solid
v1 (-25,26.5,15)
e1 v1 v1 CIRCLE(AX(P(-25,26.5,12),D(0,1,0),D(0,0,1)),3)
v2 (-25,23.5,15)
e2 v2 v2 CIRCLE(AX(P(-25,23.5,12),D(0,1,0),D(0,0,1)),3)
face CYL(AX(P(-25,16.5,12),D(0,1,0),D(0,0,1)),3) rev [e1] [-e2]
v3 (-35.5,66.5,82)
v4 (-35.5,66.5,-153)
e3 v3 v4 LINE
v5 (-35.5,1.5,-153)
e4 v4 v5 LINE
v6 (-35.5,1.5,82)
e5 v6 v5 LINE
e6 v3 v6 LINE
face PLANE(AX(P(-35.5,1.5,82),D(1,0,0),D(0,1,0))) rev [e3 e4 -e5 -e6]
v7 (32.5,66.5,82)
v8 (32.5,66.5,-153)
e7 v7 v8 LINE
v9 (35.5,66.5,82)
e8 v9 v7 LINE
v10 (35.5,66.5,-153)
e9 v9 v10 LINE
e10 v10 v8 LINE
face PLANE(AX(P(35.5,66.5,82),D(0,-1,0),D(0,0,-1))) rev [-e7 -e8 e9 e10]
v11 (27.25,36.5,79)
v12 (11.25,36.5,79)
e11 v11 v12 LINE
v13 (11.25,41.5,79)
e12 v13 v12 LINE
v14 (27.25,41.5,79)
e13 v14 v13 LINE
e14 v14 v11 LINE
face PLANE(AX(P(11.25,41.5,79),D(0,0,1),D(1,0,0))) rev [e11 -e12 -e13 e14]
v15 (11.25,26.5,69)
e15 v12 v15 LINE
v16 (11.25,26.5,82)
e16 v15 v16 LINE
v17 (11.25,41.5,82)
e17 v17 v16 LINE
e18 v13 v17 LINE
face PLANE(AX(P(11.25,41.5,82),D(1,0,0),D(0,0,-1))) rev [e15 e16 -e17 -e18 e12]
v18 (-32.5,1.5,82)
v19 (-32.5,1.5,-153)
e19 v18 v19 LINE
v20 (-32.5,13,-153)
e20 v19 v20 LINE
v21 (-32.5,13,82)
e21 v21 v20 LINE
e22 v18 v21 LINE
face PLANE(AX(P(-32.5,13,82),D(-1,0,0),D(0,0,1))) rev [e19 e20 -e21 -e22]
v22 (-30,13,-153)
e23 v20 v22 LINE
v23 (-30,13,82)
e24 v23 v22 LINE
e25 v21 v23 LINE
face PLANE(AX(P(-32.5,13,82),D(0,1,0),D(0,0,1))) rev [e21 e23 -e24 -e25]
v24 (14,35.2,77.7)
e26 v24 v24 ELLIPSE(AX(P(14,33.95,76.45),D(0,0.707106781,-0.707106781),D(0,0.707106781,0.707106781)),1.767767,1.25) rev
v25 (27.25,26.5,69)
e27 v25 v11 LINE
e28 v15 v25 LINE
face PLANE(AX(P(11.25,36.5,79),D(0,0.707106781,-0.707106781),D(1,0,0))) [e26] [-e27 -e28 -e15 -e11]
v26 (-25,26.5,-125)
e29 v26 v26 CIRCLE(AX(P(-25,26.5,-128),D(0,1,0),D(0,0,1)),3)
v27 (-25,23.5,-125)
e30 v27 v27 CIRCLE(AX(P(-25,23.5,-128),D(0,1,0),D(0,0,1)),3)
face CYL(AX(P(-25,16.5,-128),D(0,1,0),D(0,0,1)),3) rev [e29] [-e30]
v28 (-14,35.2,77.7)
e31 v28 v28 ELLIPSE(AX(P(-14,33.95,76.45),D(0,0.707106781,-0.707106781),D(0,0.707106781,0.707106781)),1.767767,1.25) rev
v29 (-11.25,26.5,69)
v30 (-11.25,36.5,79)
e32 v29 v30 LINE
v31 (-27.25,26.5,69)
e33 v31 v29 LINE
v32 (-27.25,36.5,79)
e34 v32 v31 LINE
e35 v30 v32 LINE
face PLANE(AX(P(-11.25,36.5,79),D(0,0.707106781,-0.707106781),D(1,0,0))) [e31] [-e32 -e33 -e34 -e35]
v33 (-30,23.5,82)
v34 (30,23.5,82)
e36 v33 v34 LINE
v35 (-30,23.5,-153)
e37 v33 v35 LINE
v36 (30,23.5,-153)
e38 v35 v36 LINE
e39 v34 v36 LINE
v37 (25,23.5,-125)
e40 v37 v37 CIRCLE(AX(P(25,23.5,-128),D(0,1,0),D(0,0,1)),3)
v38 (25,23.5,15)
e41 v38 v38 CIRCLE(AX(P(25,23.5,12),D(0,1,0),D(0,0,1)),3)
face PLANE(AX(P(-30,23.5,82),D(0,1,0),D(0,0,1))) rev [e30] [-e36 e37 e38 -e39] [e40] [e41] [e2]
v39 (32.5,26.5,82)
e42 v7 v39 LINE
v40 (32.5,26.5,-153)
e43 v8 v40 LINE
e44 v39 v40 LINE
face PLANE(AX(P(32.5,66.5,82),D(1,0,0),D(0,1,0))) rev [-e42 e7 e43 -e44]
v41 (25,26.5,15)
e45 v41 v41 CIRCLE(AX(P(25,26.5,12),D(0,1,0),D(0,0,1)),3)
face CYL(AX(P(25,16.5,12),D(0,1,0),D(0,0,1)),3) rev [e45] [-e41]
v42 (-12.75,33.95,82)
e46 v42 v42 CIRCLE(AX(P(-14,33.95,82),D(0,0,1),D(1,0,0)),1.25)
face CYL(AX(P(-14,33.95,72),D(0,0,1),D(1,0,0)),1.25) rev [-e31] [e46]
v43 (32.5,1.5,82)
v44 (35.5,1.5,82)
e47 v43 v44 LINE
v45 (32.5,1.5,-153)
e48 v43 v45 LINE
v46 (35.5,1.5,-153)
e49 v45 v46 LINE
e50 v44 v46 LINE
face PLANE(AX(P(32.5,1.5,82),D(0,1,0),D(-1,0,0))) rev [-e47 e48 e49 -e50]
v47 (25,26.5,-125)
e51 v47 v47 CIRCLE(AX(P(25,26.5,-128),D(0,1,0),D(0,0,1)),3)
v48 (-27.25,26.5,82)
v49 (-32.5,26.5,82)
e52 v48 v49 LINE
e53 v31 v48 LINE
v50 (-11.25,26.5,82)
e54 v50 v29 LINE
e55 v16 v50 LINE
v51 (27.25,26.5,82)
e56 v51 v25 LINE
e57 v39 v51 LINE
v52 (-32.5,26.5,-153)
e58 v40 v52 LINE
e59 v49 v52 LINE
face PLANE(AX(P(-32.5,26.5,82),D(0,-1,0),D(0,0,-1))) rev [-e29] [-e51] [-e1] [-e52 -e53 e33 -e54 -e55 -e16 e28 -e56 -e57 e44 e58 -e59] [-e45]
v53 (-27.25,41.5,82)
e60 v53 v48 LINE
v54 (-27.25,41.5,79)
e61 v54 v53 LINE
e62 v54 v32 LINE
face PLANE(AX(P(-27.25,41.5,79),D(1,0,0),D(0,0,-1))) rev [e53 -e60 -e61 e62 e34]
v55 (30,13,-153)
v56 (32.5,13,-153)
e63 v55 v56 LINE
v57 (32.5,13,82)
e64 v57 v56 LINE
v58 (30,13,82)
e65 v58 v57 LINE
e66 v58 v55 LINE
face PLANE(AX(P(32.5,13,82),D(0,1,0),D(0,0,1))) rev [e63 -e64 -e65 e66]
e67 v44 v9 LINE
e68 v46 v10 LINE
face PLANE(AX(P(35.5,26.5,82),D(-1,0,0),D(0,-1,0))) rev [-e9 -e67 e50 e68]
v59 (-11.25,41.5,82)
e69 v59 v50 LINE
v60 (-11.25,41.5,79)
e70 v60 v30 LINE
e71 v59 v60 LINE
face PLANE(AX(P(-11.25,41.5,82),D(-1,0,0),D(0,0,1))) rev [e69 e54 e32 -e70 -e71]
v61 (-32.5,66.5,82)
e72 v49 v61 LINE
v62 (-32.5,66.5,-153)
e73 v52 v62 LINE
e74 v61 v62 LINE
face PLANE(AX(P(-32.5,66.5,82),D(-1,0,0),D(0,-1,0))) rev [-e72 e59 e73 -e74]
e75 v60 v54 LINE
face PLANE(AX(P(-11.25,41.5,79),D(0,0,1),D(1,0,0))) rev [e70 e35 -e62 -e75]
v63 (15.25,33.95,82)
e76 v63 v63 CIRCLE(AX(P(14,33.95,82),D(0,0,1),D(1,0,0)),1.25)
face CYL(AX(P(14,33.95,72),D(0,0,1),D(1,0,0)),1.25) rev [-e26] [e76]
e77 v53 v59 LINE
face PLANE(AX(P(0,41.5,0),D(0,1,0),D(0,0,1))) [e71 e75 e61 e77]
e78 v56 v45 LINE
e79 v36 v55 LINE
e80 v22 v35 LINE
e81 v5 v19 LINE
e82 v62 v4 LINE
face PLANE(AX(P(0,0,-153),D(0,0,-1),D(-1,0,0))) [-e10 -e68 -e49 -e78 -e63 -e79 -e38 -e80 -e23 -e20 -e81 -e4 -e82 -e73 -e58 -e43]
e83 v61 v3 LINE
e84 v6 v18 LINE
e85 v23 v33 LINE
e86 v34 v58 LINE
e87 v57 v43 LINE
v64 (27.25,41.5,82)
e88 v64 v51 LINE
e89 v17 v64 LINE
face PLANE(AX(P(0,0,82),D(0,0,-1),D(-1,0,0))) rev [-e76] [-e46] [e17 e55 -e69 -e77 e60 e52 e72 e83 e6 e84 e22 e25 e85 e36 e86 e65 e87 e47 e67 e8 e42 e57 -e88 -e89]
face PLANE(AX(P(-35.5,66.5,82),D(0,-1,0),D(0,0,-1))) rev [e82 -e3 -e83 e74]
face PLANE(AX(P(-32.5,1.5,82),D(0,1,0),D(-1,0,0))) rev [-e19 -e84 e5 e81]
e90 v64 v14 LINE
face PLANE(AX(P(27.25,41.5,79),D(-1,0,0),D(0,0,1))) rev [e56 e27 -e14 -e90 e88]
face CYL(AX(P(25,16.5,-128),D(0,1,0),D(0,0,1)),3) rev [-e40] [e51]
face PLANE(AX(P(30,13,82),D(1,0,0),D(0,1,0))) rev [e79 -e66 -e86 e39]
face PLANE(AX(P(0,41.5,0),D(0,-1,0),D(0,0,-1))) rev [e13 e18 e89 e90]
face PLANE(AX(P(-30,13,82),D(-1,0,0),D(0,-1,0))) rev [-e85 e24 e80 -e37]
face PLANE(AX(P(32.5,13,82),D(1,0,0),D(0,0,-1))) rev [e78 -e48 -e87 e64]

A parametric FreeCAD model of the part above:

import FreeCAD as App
import Part
import Sketcher


def edges_at(feature, points):
    """Names of the edges that pass closest to the given points."""
    edges = feature.Shape.Edges
    near = lambda p: min(range(len(edges)), key=lambda i: edges[i].distToShape(Part.Vertex(*p))[0])
    return sorted({f"Edge{near(p) + 1}" for p in points})


def add_polygon(sketch, points):
    """Adds a closed chain of lines whose ends are joined by coincident constraints."""
    first, n = sketch.GeometryCount, len(points)
    for a, b in zip(points, points[1:] + points[:1]):
        sketch.addGeometry(Part.LineSegment(App.Vector(*a, 0), App.Vector(*b, 0)), False)
    for i in range(n):
        sketch.addConstraint(Sketcher.Constraint("Coincident", first + i, 2, first + (i + 1) % n, 1))

doc = App.newDocument("Part")
params = doc.addObject("Spreadsheet::Sheet", "Params")
for row, (alias, value) in enumerate([
    ("sketch1_width", "60 mm"),
    ("sketch1_width2", "3 mm"),
    ("sketch1_width3", "65 mm"),
    ("sketch1_height", "40 mm"),
    ("sketch1_height2", "11.5 mm"),
    ("pad1_length", "82 mm"),
    ("pad1_length2", "153 mm"),
    ("sketch2_width", "16 mm"),
    ("sketch2_height", "3 mm"),
    ("pad2_length", "15 mm"),
    ("chamfer_size", "10 mm"),
    ("sketch3_diameter", "2.5 mm"),
    ("pocket1_length", "10 mm"),
    ("sketch4_diameter", "6 mm"),
    ("pocket2_length", "10 mm"),
], start=1):
    params.set(f"A{row}", alias)
    params.set(f"B{row}", "=" + value)
    params.setAlias(f"B{row}", alias)

body = doc.addObject("PartDesign::Body", "Body")

sketch1 = doc.addObject("Sketcher::SketchObject", "Sketch")
body.addObject(sketch1)
sketch1.AttachmentSupport = (doc.XY_Plane, [""])
sketch1.MapMode = "FlatFace"
add_polygon(sketch1, [(-32.5, 1.5), (-32.5, 13), (-30, 13), (-30, 23.5), (30, 23.5), (30, 13), (32.5, 13), (32.5, 1.5), (35.5, 1.5), (35.5, 66.5), (32.5, 66.5), (32.5, 26.5), (-32.5, 26.5), (-32.5, 66.5), (-35.5, 66.5), (-35.5, 1.5)])
sketch1.addConstraint([
    Sketcher.Constraint("Vertical", 0),
    Sketcher.Constraint("Horizontal", 1),
    Sketcher.Constraint("Vertical", 2),
    Sketcher.Constraint("Horizontal", 3),
    Sketcher.Constraint("Vertical", 4),
    Sketcher.Constraint("Horizontal", 5),
    Sketcher.Constraint("Vertical", 6),
    Sketcher.Constraint("Horizontal", 7),
    Sketcher.Constraint("Vertical", 8),
    Sketcher.Constraint("Horizontal", 9),
    Sketcher.Constraint("Vertical", 10),
    Sketcher.Constraint("Horizontal", 11),
    Sketcher.Constraint("Vertical", 12),
    Sketcher.Constraint("Horizontal", 13),
    Sketcher.Constraint("Vertical", 14),
    Sketcher.Constraint("Horizontal", 15),
    Sketcher.Constraint("Symmetric", 1, 2, 4, 2, -2),
    Sketcher.Constraint("Symmetric", 9, 2, 12, 2, -2),
    Sketcher.Constraint("Symmetric", 7, 2, 14, 2, -2),
    Sketcher.Constraint("Vertical", 6, 2, 9, 2),
    Sketcher.Constraint("Vertical", 0, 2, 11, 2),
    Sketcher.Constraint("Equal", 11, 8),
    Sketcher.Constraint("DistanceX", 3, 1, 3, 2, 60.0),
    Sketcher.Constraint("DistanceX", 7, 1, 7, 2, 3.0),
    Sketcher.Constraint("DistanceX", 11, 2, 11, 1, 65.0),
    Sketcher.Constraint("DistanceY", 10, 2, 10, 1, 40.0),
    Sketcher.Constraint("DistanceY", 0, 1, 0, 2, 11.5),
    Sketcher.Constraint("DistanceY", 2, 1, 2, 2, 10.5),
    Sketcher.Constraint("DistanceY", -1, 1, 0, 2, 13.0),
])
sketch1.setExpression("Constraints[38]", "Params.sketch1_width")
sketch1.setExpression("Constraints[39]", "Params.sketch1_width2")
sketch1.setExpression("Constraints[40]", "Params.sketch1_width3")
sketch1.setExpression("Constraints[41]", "Params.sketch1_height")
sketch1.setExpression("Constraints[42]", "Params.sketch1_height2")
pad1 = doc.addObject("PartDesign::Pad", "Pad")
body.addObject(pad1)
pad1.Profile = sketch1
pad1.Type = "TwoLengths"
pad1.setExpression("Length", "Params.pad1_length")
pad1.setExpression("Length2", "Params.pad1_length2")

sketch2 = doc.addObject("Sketcher::SketchObject", "Sketch001")
body.addObject(sketch2)
sketch2.AttachmentSupport = (doc.XZ_Plane, [""])
sketch2.MapMode = "FlatFace"
sketch2.AttachmentOffset = App.Placement(App.Vector(0, 0, -26.5), App.Rotation())
add_polygon(sketch2, [(-27.2, 79), (-27.2, 82), (-11.2, 82), (-11.2, 79)])
add_polygon(sketch2, [(11.2, 79), (11.2, 82), (27.2, 82), (27.2, 79)])
sketch2.addConstraint([
    Sketcher.Constraint("Vertical", 0),
    Sketcher.Constraint("Horizontal", 1),
    Sketcher.Constraint("Vertical", 2),
    Sketcher.Constraint("Horizontal", 3),
    Sketcher.Constraint("Vertical", 4),
    Sketcher.Constraint("Horizontal", 5),
    Sketcher.Constraint("Vertical", 6),
    Sketcher.Constraint("Horizontal", 7),
    Sketcher.Constraint("Symmetric", 1, 2, 4, 2, -2),
    Sketcher.Constraint("Symmetric", 3, 2, 6, 2, -2),
    Sketcher.Constraint("DistanceX", 1, 1, 1, 2, 16.0),
    Sketcher.Constraint("DistanceY", 0, 1, 0, 2, 3.0),
    Sketcher.Constraint("DistanceY", -1, 1, 0, 2, 82.0),
    Sketcher.Constraint("DistanceX", 1, 2, 4, 2, 22.5),
])
sketch2.setExpression("Constraints[18]", "Params.sketch2_width")
sketch2.setExpression("Constraints[19]", "Params.sketch2_height")
pad2 = doc.addObject("PartDesign::Pad", "Pad001")
body.addObject(pad2)
pad2.Profile = sketch2
pad2.setExpression("Length", "Params.pad2_length")
pad2.Reversed = True
doc.recompute()

chamfer = doc.addObject("PartDesign::Chamfer", "Chamfer")
body.addObject(chamfer)
chamfer.Base = (pad2, edges_at(pad2, [(-19.25, 26.5, 79), (19.25, 26.5, 79)]))
chamfer.setExpression("Size", "Params.chamfer_size")

sketch3 = doc.addObject("Sketcher::SketchObject", "Sketch002")
body.addObject(sketch3)
sketch3.AttachmentSupport = (doc.XY_Plane, [""])
sketch3.MapMode = "FlatFace"
sketch3.AttachmentOffset = App.Placement(App.Vector(0, 0, 82), App.Rotation())
sketch3.addGeometry([
    Part.Circle(App.Vector(-14, 34, 0), App.Vector(0, 0, 1), 1.2),
    Part.Circle(App.Vector(14, 34, 0), App.Vector(0, 0, 1), 1.2),
], False)
sketch3.addConstraint([
    Sketcher.Constraint("Equal", 0, 1),
    Sketcher.Constraint("Symmetric", 0, 3, 1, 3, -2),
    Sketcher.Constraint("Diameter", 0, 2.5),
    Sketcher.Constraint("DistanceX", 0, 3, -1, 1, 14.0),
    Sketcher.Constraint("DistanceY", -1, 1, 0, 3, 33.95),
])
sketch3.setExpression("Constraints[2]", "Params.sketch3_diameter")
pocket1 = doc.addObject("PartDesign::Pocket", "Pocket")
body.addObject(pocket1)
pocket1.Profile = sketch3
pocket1.setExpression("Length", "Params.pocket1_length")

sketch4 = doc.addObject("Sketcher::SketchObject", "Sketch003")
body.addObject(sketch4)
sketch4.AttachmentSupport = (doc.XZ_Plane, [""])
sketch4.MapMode = "FlatFace"
sketch4.AttachmentOffset = App.Placement(App.Vector(0, 0, -26.5), App.Rotation())
sketch4.addGeometry([
    Part.Circle(App.Vector(-25, -128, 0), App.Vector(0, 0, 1), 3),
    Part.Circle(App.Vector(25, -128, 0), App.Vector(0, 0, 1), 3),
    Part.Circle(App.Vector(25, 12, 0), App.Vector(0, 0, 1), 3),
    Part.Circle(App.Vector(-25, 12, 0), App.Vector(0, 0, 1), 3),
], False)
sketch4.addConstraint([
    Sketcher.Constraint("Equal", 0, 1),
    Sketcher.Constraint("Equal", 1, 2),
    Sketcher.Constraint("Equal", 2, 3),
    Sketcher.Constraint("Symmetric", 0, 3, 1, 3, -2),
    Sketcher.Constraint("Symmetric", 2, 3, 3, 3, -2),
    Sketcher.Constraint("Vertical", 1, 3, 2, 3),
    Sketcher.Constraint("Diameter", 0, 6.0),
    Sketcher.Constraint("DistanceX", 0, 3, -1, 1, 25.0),
    Sketcher.Constraint("DistanceY", 0, 3, -1, 1, 128.0),
    Sketcher.Constraint("DistanceY", -1, 1, 2, 3, 12.0),
])
sketch4.setExpression("Constraints[6]", "Params.sketch4_diameter")
pocket2 = doc.addObject("PartDesign::Pocket", "Pocket001")
body.addObject(pocket2)
pocket2.Profile = sketch4
pocket2.setExpression("Length", "Params.pocket2_length")
pocket2.Reversed = True

doc.recompute()
